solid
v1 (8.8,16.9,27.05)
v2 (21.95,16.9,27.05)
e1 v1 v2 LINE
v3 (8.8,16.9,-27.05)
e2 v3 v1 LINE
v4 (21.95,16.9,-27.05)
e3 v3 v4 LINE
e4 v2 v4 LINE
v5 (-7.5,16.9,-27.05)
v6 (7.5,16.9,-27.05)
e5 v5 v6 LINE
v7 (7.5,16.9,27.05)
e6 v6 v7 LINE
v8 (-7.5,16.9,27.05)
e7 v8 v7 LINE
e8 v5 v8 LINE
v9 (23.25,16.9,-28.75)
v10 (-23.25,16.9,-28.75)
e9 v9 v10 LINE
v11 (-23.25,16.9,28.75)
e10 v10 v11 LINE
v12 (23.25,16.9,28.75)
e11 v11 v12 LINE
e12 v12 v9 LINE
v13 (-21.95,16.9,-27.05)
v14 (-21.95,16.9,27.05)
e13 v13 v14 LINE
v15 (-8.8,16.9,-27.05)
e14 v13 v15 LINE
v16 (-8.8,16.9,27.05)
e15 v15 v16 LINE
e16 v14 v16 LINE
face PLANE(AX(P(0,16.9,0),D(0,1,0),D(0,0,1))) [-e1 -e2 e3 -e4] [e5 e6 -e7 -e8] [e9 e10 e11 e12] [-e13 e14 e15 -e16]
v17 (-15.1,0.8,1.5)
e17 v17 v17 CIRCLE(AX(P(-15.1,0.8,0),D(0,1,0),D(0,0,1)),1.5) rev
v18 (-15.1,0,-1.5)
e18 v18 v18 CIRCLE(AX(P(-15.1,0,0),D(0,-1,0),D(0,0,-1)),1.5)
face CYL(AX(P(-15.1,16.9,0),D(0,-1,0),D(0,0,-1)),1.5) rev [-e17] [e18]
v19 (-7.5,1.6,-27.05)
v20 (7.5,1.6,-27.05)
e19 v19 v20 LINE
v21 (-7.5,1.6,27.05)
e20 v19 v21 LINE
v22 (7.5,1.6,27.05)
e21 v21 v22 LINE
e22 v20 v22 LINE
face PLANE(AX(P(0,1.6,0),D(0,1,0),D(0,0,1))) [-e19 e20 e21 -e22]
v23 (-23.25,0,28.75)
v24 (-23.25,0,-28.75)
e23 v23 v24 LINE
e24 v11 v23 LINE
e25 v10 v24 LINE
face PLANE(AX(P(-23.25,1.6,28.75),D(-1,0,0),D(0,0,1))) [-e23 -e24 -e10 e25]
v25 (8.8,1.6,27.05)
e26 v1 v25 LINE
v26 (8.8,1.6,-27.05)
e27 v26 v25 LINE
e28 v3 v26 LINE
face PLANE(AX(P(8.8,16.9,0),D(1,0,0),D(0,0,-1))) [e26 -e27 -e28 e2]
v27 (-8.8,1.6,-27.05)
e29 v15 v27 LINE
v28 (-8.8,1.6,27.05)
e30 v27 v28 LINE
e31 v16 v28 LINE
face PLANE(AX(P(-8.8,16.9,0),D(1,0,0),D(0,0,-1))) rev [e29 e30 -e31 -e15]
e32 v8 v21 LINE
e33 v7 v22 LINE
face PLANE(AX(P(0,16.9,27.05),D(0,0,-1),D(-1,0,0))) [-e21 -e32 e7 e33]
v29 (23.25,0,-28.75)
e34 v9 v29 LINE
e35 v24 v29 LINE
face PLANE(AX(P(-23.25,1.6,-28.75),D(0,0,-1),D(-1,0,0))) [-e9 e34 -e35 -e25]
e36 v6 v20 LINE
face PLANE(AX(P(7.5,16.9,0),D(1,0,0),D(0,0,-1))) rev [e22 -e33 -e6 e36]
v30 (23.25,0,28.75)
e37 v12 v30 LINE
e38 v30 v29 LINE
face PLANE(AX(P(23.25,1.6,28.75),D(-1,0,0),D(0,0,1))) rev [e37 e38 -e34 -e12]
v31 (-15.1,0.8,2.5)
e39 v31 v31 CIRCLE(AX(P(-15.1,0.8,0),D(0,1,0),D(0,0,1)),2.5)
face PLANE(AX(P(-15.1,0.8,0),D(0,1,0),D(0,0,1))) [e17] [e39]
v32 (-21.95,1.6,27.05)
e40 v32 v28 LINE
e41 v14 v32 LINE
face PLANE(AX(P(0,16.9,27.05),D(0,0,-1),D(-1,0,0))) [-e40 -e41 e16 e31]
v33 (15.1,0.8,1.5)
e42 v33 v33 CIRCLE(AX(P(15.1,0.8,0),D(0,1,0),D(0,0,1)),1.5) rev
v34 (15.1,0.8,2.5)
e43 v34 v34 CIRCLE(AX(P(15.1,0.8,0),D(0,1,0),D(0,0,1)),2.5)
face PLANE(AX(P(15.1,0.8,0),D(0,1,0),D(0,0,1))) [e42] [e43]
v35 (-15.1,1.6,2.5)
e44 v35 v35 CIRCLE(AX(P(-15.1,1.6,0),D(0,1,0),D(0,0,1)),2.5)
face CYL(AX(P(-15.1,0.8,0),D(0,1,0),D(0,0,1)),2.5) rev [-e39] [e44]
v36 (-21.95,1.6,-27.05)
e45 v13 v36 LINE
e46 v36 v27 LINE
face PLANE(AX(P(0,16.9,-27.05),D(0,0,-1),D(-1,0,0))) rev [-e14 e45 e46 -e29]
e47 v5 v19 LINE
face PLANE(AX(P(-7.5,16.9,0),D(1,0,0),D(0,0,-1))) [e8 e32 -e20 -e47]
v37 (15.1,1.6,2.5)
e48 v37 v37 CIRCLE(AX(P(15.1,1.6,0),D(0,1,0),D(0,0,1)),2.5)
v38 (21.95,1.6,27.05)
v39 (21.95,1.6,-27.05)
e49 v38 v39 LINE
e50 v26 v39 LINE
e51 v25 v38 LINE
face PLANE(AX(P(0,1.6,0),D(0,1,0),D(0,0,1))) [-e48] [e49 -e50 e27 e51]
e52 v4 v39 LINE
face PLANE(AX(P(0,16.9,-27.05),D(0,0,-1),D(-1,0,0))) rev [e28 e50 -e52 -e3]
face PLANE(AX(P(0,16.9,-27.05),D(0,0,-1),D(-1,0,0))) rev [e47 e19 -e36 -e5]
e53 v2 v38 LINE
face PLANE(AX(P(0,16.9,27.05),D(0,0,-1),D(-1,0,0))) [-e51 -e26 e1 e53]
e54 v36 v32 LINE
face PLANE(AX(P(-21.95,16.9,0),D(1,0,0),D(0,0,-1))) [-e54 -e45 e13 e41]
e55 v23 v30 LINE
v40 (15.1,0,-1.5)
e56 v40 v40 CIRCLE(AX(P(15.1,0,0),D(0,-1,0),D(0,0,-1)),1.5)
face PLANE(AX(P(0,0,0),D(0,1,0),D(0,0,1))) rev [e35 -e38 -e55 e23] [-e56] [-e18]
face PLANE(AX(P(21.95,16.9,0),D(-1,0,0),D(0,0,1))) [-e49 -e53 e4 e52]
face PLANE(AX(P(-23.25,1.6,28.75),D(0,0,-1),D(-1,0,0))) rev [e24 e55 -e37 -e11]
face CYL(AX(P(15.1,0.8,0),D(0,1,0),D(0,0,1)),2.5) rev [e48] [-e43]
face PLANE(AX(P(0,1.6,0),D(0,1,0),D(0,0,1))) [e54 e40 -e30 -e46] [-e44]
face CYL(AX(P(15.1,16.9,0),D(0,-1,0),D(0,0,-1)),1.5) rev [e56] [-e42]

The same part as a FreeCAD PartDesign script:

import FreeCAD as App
import Part
import Sketcher

V = App.Vector

doc = App.newDocument("Part")
body = doc.addObject("PartDesign::Body", "Body")

# Sketch on XZ plane
sketch1 = doc.addObject("Sketcher::SketchObject", "Sketch")
body.addObject(sketch1)
sketch1.AttachmentSupport = (doc.XZ_Plane, [""])
sketch1.MapMode = "FlatFace"
sketch1.addGeometry([
    Part.LineSegment(V(-23, -29, 0), V(-23, 29, 0)),
    Part.LineSegment(V(-23, 29, 0), V(23, 29, 0)),
    Part.LineSegment(V(23, 29, 0), V(23, -29, 0)),
    Part.LineSegment(V(23, -29, 0), V(-23, -29, 0)),
], False)
sketch1.addConstraint([
    Sketcher.Constraint("Coincident", 0, 2, 1, 1),
    Sketcher.Constraint("Coincident", 1, 2, 2, 1),
    Sketcher.Constraint("Coincident", 2, 2, 3, 1),
    Sketcher.Constraint("Coincident", 3, 2, 0, 1),
    Sketcher.Constraint("Vertical", 0),
    Sketcher.Constraint("Horizontal", 1),
    Sketcher.Constraint("Vertical", 2),
    Sketcher.Constraint("Horizontal", 3),
    Sketcher.Constraint("Symmetric", 0, 2, 2, 2, -1, 1),
    Sketcher.Constraint("DistanceX", 1, 1, 1, 2, 46.5),
    Sketcher.Constraint("DistanceY", 0, 1, 0, 2, 57.5),
])
pad1 = doc.addObject("PartDesign::Pad", "Pad")
body.addObject(pad1)
pad1.Profile = sketch1
pad1.Length = 1.6
pad1.Reversed = True

# Sketch on XZ plane
sketch2 = doc.addObject("Sketcher::SketchObject", "Sketch001")
body.addObject(sketch2)
sketch2.AttachmentSupport = (doc.XZ_Plane, [""])
sketch2.MapMode = "FlatFace"
sketch2.AttachmentOffset = App.Placement(V(0, 0, -1.6), App.Rotation())
sketch2.addGeometry([
    Part.LineSegment(V(-23, -29, 0), V(-23, 29, 0)),  # 0
    Part.LineSegment(V(-23, 29, 0), V(23, 29, 0)),  # 1
    Part.LineSegment(V(23, 29, 0), V(23, -29, 0)),  # 2
    Part.LineSegment(V(23, -29, 0), V(-23, -29, 0)),  # 3
    Part.LineSegment(V(-9, 27, 0), V(-22, 27, 0)),  # 4
    Part.LineSegment(V(-22, 27, 0), V(-22, -27, 0)),  # 5
    Part.LineSegment(V(-22, -27, 0), V(-9, -27, 0)),  # 6
    Part.LineSegment(V(-9, -27, 0), V(-9, 27, 0)),  # 7
    Part.LineSegment(V(8, 27, 0), V(-8, 27, 0)),  # 8
    Part.LineSegment(V(-8, 27, 0), V(-8, -27, 0)),  # 9
    Part.LineSegment(V(-8, -27, 0), V(8, -27, 0)),  # 10
    Part.LineSegment(V(8, -27, 0), V(8, 27, 0)),  # 11
    Part.LineSegment(V(22, 27, 0), V(9, 27, 0)),  # 12
    Part.LineSegment(V(9, 27, 0), V(9, -27, 0)),  # 13
    Part.LineSegment(V(9, -27, 0), V(22, -27, 0)),  # 14
    Part.LineSegment(V(22, -27, 0), V(22, 27, 0)),  # 15
], False)
sketch2.addConstraint([
    Sketcher.Constraint("Coincident", 0, 2, 1, 1),
    Sketcher.Constraint("Coincident", 1, 2, 2, 1),
    Sketcher.Constraint("Coincident", 2, 2, 3, 1),
    Sketcher.Constraint("Coincident", 3, 2, 0, 1),
    Sketcher.Constraint("Coincident", 4, 2, 5, 1),
    Sketcher.Constraint("Coincident", 5, 2, 6, 1),
    Sketcher.Constraint("Coincident", 6, 2, 7, 1),
    Sketcher.Constraint("Coincident", 7, 2, 4, 1),
    Sketcher.Constraint("Coincident", 8, 2, 9, 1),
    Sketcher.Constraint("Coincident", 9, 2, 10, 1),
    Sketcher.Constraint("Coincident", 10, 2, 11, 1),
    Sketcher.Constraint("Coincident", 11, 2, 8, 1),
    Sketcher.Constraint("Coincident", 12, 2, 13, 1),
    Sketcher.Constraint("Coincident", 13, 2, 14, 1),
    Sketcher.Constraint("Coincident", 14, 2, 15, 1),
    Sketcher.Constraint("Coincident", 15, 2, 12, 1),
    Sketcher.Constraint("Vertical", 0),
    Sketcher.Constraint("Horizontal", 1),
    Sketcher.Constraint("Vertical", 2),
    Sketcher.Constraint("Horizontal", 3),
    Sketcher.Constraint("Horizontal", 4),
    Sketcher.Constraint("Vertical", 5),
    Sketcher.Constraint("Horizontal", 6),
    Sketcher.Constraint("Vertical", 7),
    Sketcher.Constraint("Horizontal", 8),
    Sketcher.Constraint("Vertical", 9),
    Sketcher.Constraint("Horizontal", 10),
    Sketcher.Constraint("Vertical", 11),
    Sketcher.Constraint("Horizontal", 12),
    Sketcher.Constraint("Vertical", 13),
    Sketcher.Constraint("Horizontal", 14),
    Sketcher.Constraint("Vertical", 15),
    Sketcher.Constraint("Symmetric", 0, 2, 2, 2, -1, 1),
    Sketcher.Constraint("Symmetric", 8, 2, 10, 2, -1, 1),
    Sketcher.Constraint("Symmetric", 6, 2, 12, 2, -1, 1),
    Sketcher.Constraint("Symmetric", 4, 2, 14, 2, -1, 1),
    Sketcher.Constraint("Horizontal", 7, 2, 8, 2),
    Sketcher.Constraint("Horizontal", 6, 2, 9, 2),
    Sketcher.Constraint("DistanceX", 8, 2, 8, 1, 15.0),
    Sketcher.Constraint("DistanceX", 1, 1, 1, 2, 46.5),
    Sketcher.Constraint("DistanceY", 0, 1, 0, 2, 57.5),
    Sketcher.Constraint("DistanceY", 5, 2, 5, 1, 54.1),
    Sketcher.Constraint("DistanceX", 4, 2, 4, 1, 13.15),
    Sketcher.Constraint("DistanceX", 6, 2, -1, 1, 8.8),
])
pad2 = doc.addObject("PartDesign::Pad", "Pad001")
body.addObject(pad2)
pad2.Profile = sketch2
pad2.Length = 15.3
pad2.Reversed = True

# Sketch on XZ plane
sketch3 = doc.addObject("Sketcher::SketchObject", "Sketch002")
body.addObject(sketch3)
sketch3.AttachmentSupport = (doc.XZ_Plane, [""])
sketch3.MapMode = "FlatFace"
sketch3.addGeometry([
    Part.Circle(V(-15.1, 0, 0), V(0, 0, 1), 1.5),
    Part.Circle(V(15.1, 0, 0), V(0, 0, 1), 1.5),
], False)
sketch3.addConstraint([
    Sketcher.Constraint("Equal", 0, 1),
    Sketcher.Constraint("Symmetric", 0, 3, 1, 3, -1, 1),
    Sketcher.Constraint("PointOnObject", 0, 3, -1),
    Sketcher.Constraint("Diameter", 0, 3.0),
    Sketcher.Constraint("DistanceX", 0, 3, -1, 1, 15.1),
])
pocket1 = doc.addObject("PartDesign::Pocket", "Pocket")
body.addObject(pocket1)
pocket1.Profile = sketch3
pocket1.Type = "ThroughAll"

# Sketch on XZ plane
sketch4 = doc.addObject("Sketcher::SketchObject", "Sketch003")
body.addObject(sketch4)
sketch4.AttachmentSupport = (doc.XZ_Plane, [""])
sketch4.MapMode = "FlatFace"
sketch4.AttachmentOffset = App.Placement(V(0, 0, -1.6), App.Rotation())
sketch4.addGeometry([
    Part.Circle(V(-15.1, 0, 0), V(0, 0, 1), 2.5),
    Part.Circle(V(15.1, 0, 0), V(0, 0, 1), 2.5),
], False)
sketch4.addConstraint([
    Sketcher.Constraint("Equal", 0, 1),
    Sketcher.Constraint("Symmetric", 0, 3, 1, 3, -1, 1),
    Sketcher.Constraint("PointOnObject", 0, 3, -1),
    Sketcher.Constraint("Diameter", 0, 5.0),
    Sketcher.Constraint("DistanceX", 0, 3, -1, 1, 15.1),
])
pocket2 = doc.addObject("PartDesign::Pocket", "Pocket001")
body.addObject(pocket2)
pocket2.Profile = sketch4
pocket2.Length = 0.8
pocket2.Reversed = True

doc.recompute()
